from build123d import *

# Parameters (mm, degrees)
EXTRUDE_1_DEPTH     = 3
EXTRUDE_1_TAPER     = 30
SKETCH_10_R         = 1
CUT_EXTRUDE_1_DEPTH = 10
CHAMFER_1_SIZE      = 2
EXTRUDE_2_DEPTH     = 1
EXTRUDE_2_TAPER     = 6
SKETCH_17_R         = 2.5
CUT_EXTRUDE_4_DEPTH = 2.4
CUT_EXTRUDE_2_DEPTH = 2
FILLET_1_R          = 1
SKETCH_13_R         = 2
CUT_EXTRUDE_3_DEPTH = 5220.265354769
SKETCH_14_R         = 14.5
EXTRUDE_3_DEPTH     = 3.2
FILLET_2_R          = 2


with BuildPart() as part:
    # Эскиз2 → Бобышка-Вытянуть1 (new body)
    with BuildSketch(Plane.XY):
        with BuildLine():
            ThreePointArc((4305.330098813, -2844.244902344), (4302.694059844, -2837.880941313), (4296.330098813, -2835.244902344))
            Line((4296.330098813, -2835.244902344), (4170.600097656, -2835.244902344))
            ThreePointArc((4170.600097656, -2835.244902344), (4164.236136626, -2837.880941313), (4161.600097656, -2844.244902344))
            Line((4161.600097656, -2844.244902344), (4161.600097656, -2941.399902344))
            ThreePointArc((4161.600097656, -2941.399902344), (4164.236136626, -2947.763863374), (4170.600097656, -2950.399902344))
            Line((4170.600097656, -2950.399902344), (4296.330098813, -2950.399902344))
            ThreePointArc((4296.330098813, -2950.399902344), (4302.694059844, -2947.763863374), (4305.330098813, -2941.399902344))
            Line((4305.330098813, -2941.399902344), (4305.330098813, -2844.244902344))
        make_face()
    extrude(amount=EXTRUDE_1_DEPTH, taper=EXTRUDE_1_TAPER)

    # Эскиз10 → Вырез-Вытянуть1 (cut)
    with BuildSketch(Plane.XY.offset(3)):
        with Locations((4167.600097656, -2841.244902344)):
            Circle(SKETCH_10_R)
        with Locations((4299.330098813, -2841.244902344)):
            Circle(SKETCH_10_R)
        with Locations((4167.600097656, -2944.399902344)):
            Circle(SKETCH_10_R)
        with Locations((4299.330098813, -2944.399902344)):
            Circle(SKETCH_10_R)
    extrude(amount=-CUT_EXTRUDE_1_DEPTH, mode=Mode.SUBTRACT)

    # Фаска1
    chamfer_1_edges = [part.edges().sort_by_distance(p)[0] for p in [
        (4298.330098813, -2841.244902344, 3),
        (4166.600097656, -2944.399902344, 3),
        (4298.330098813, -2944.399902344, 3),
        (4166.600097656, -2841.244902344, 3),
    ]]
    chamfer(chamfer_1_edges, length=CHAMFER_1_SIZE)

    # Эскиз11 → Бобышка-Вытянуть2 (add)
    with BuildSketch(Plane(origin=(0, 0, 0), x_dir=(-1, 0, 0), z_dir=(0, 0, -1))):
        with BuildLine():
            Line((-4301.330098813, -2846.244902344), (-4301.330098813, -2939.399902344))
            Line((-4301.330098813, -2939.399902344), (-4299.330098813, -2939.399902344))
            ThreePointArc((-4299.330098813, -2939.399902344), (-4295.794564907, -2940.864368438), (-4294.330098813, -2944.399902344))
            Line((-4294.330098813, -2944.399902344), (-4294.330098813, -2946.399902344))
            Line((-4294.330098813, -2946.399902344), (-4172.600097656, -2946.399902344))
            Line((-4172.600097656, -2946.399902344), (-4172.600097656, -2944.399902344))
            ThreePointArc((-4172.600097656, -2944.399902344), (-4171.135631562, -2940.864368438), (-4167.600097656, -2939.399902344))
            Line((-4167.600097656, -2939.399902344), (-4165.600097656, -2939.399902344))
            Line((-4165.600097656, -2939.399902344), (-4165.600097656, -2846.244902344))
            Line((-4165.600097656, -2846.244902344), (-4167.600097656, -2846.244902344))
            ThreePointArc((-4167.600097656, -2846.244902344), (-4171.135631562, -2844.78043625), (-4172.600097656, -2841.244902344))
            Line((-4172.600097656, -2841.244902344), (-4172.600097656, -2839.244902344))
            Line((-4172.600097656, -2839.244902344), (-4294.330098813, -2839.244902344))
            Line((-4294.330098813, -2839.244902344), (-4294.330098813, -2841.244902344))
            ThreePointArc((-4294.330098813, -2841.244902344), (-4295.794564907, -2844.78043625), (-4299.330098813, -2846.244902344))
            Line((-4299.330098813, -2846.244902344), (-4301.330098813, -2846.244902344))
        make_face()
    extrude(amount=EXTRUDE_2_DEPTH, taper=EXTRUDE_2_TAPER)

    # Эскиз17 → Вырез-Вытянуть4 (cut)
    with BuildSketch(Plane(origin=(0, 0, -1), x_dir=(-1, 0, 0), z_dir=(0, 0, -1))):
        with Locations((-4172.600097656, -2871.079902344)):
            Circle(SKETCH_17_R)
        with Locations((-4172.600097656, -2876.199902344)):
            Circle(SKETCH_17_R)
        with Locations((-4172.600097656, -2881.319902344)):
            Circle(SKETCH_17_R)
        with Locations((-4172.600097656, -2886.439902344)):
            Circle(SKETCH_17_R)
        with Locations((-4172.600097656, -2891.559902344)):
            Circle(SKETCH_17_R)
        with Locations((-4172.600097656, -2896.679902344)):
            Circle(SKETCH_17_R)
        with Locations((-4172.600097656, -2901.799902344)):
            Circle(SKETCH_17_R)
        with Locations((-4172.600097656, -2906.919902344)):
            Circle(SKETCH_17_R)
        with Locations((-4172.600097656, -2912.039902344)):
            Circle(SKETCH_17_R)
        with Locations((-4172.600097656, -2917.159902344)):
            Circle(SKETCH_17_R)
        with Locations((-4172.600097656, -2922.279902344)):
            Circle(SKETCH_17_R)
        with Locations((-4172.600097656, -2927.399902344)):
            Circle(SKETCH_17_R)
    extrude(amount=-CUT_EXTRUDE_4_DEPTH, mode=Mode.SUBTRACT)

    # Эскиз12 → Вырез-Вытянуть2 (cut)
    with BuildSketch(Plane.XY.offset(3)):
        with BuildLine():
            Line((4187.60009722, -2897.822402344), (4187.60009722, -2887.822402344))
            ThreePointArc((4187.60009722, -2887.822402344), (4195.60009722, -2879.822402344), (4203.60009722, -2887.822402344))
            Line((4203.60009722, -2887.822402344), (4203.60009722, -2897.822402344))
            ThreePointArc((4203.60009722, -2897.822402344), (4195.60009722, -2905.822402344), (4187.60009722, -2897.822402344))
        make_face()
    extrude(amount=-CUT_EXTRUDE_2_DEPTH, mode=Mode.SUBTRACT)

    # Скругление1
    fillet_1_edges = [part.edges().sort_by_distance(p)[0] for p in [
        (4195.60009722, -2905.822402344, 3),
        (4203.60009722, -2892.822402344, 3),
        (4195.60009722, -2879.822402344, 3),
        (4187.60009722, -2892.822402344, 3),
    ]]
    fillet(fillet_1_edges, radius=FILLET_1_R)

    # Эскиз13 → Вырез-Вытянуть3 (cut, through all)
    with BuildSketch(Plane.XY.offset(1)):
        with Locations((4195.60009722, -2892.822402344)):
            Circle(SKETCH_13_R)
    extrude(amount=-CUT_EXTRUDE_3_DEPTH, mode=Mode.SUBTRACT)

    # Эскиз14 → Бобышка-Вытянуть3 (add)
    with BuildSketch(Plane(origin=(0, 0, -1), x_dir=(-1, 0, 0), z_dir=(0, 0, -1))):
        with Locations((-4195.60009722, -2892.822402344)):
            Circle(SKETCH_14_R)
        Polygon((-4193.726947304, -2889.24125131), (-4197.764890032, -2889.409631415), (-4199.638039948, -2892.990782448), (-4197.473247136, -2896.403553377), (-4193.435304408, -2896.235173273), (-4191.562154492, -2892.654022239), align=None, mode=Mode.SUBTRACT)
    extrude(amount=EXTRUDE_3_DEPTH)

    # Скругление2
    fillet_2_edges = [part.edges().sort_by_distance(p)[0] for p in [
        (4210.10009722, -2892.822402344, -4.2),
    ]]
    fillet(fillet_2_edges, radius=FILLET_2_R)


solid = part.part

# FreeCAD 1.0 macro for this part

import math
import FreeCAD as App
import Part
import Sketcher


def edges_at(feature, points):
    """Names of the edges that pass closest to the given points."""
    edges = feature.Shape.Edges
    near = lambda p: min(range(len(edges)), key=lambda i: edges[i].distToShape(Part.Vertex(*p))[0])
    return sorted({f"Edge{near(p) + 1}" for p in points})


def add_polygon(sketch, points):
    """Adds a closed chain of lines whose ends are joined by coincident constraints."""
    first, n = sketch.GeometryCount, len(points)
    for a, b in zip(points, points[1:] + points[:1]):
        sketch.addGeometry(Part.LineSegment(App.Vector(*a, 0), App.Vector(*b, 0)), False)
    for i in range(n):
        sketch.addConstraint(Sketcher.Constraint("Coincident", first + i, 2, first + (i + 1) % n, 1))

doc = App.newDocument("Part")
body = doc.addObject("PartDesign::Body", "Body")

sketch1 = body.newObject("Sketcher::SketchObject", "Sketch")
sketch1.AttachmentSupport = (doc.getObject("XY_Plane"), [""])
sketch1.MapMode = "FlatFace"
sketch1.addGeometry([
    Part.ArcOfCircle(Part.Circle(App.Vector(4296, -2844, 0), App.Vector(0, 0, 1), 9), math.radians(0), math.radians(90)),
    Part.LineSegment(App.Vector(4296, -2835, 0), App.Vector(4171, -2835, 0)),
    Part.ArcOfCircle(Part.Circle(App.Vector(4171, -2844, 0), App.Vector(0, 0, 1), 9), math.radians(90), math.radians(180)),
    Part.LineSegment(App.Vector(4162, -2844, 0), App.Vector(4162, -2941, 0)),
    Part.ArcOfCircle(Part.Circle(App.Vector(4171, -2941, 0), App.Vector(0, 0, 1), 9), math.radians(-180), math.radians(-90)),
    Part.LineSegment(App.Vector(4171, -2950, 0), App.Vector(4296, -2950, 0)),
    Part.ArcOfCircle(Part.Circle(App.Vector(4296, -2941, 0), App.Vector(0, 0, 1), 9), math.radians(-90), math.radians(0)),
    Part.LineSegment(App.Vector(4305, -2941, 0), App.Vector(4305, -2844, 0)),
], False)
sketch1.addConstraint([
    Sketcher.Constraint("Tangent", 0, 2, 1, 1),
    Sketcher.Constraint("Tangent", 1, 2, 2, 1),
    Sketcher.Constraint("Tangent", 2, 2, 3, 1),
    Sketcher.Constraint("Tangent", 3, 2, 4, 1),
    Sketcher.Constraint("Tangent", 4, 2, 5, 1),
    Sketcher.Constraint("Tangent", 5, 2, 6, 1),
    Sketcher.Constraint("Tangent", 6, 2, 7, 1),
    Sketcher.Constraint("Tangent", 7, 2, 0, 1),
    Sketcher.Constraint("Horizontal", 1),
    Sketcher.Constraint("Vertical", 3),
    Sketcher.Constraint("Horizontal", 5),
    Sketcher.Constraint("Vertical", 7),
    Sketcher.Constraint("Equal", 0, 2),
    Sketcher.Constraint("Equal", 2, 4),
    Sketcher.Constraint("Equal", 4, 6),
    Sketcher.Constraint("Radius", 0, 9.0),
    Sketcher.Constraint("DistanceX", 1, 2, 1, 1, 125.730001),
    Sketcher.Constraint("DistanceY", 3, 2, 3, 1, 97.155),
    Sketcher.Constraint("DistanceX", -1, 1, 0, 3, 4296.330099),
    Sketcher.Constraint("DistanceY", 0, 3, -1, 1, 2844.244902),
])
pad1 = body.newObject("PartDesign::Pad", "Pad")
pad1.Profile = sketch1
pad1.Length = 3
pad1.TaperAngle = -30

sketch2 = body.newObject("Sketcher::SketchObject", "Sketch001")
sketch2.AttachmentSupport = (doc.getObject("XY_Plane"), [""])
sketch2.MapMode = "FlatFace"
sketch2.AttachmentOffset = App.Placement(App.Vector(0, 0, 3), App.Rotation())
sketch2.addGeometry([
    Part.Circle(App.Vector(4167.6, -2841.2, 0), App.Vector(0, 0, 1), 1),
    Part.Circle(App.Vector(4299.3, -2841.2, 0), App.Vector(0, 0, 1), 1),
    Part.Circle(App.Vector(4167.6, -2944.4, 0), App.Vector(0, 0, 1), 1),
    Part.Circle(App.Vector(4299.3, -2944.4, 0), App.Vector(0, 0, 1), 1),
], False)
sketch2.addConstraint([
    Sketcher.Constraint("Equal", 0, 1),
    Sketcher.Constraint("Equal", 1, 2),
    Sketcher.Constraint("Equal", 2, 3),
    Sketcher.Constraint("Horizontal", 0, 3, 1, 3),
    Sketcher.Constraint("Horizontal", 2, 3, 3, 3),
    Sketcher.Constraint("Vertical", 0, 3, 2, 3),
    Sketcher.Constraint("Vertical", 1, 3, 3, 3),
    Sketcher.Constraint("Diameter", 0, 2.0),
    Sketcher.Constraint("DistanceX", 0, 3, 1, 3, 131.730001),
    Sketcher.Constraint("DistanceY", 2, 3, 0, 3, 103.155),
    Sketcher.Constraint("DistanceX", -1, 1, 1, 3, 4299.330099),
    Sketcher.Constraint("DistanceY", 0, 3, -1, 1, 2841.244902),
])
pocket1 = body.newObject("PartDesign::Pocket", "Pocket")
pocket1.Profile = sketch2
pocket1.Length = 10
doc.recompute()

chamfer = body.newObject("PartDesign::Chamfer", "Chamfer")
chamfer.Base = (pocket1, edges_at(pocket1, [
    (4298.33, -2841.245, 3),
    (4166.6, -2944.4, 3),
    (4298.33, -2944.4, 3),
    (4166.6, -2841.245, 3),
]))
chamfer.Size = 2

sketch3 = body.newObject("Sketcher::SketchObject", "Sketch002")
sketch3.AttachmentSupport = (doc.getObject("XY_Plane"), [""])
sketch3.MapMode = "FlatFace"
sketch3.addGeometry([
    Part.LineSegment(App.Vector(4301.3, -2846.2, 0), App.Vector(4301.3, -2939.4, 0)),
    Part.LineSegment(App.Vector(4301.3, -2939.4, 0), App.Vector(4299.3, -2939.4, 0)),
    Part.ArcOfCircle(Part.Circle(App.Vector(4299.3, -2944.4, 0), App.Vector(0, 0, 1), 5), math.radians(90), math.radians(180)),
    Part.LineSegment(App.Vector(4294.3, -2944.4, 0), App.Vector(4294.3, -2946.4, 0)),
    Part.LineSegment(App.Vector(4294.3, -2946.4, 0), App.Vector(4172.6, -2946.4, 0)),
    Part.LineSegment(App.Vector(4172.6, -2946.4, 0), App.Vector(4172.6, -2944.4, 0)),
    Part.ArcOfCircle(Part.Circle(App.Vector(4167.6, -2944.4, 0), App.Vector(0, 0, 1), 5), math.radians(0), math.radians(90)),
    Part.LineSegment(App.Vector(4167.6, -2939.4, 0), App.Vector(4165.6, -2939.4, 0)),
    Part.LineSegment(App.Vector(4165.6, -2939.4, 0), App.Vector(4165.6, -2846.2, 0)),
    Part.LineSegment(App.Vector(4165.6, -2846.2, 0), App.Vector(4167.6, -2846.2, 0)),
    Part.ArcOfCircle(Part.Circle(App.Vector(4167.6, -2841.2, 0), App.Vector(0, 0, 1), 5), math.radians(-90), math.radians(0)),
    Part.LineSegment(App.Vector(4172.6, -2841.2, 0), App.Vector(4172.6, -2839.2, 0)),
    Part.LineSegment(App.Vector(4172.6, -2839.2, 0), App.Vector(4294.3, -2839.2, 0)),
    Part.LineSegment(App.Vector(4294.3, -2839.2, 0), App.Vector(4294.3, -2841.2, 0)),
    Part.ArcOfCircle(Part.Circle(App.Vector(4299.3, -2841.2, 0), App.Vector(0, 0, 1), 5), math.radians(180), math.radians(270)),
    Part.LineSegment(App.Vector(4299.3, -2846.2, 0), App.Vector(4301.3, -2846.2, 0)),
], False)
sketch3.addConstraint([
    Sketcher.Constraint("Coincident", 0, 2, 1, 1),
    Sketcher.Constraint("Tangent", 1, 2, 2, 1),
    Sketcher.Constraint("Tangent", 2, 2, 3, 1),
    Sketcher.Constraint("Coincident", 3, 2, 4, 1),
    Sketcher.Constraint("Coincident", 4, 2, 5, 1),
    Sketcher.Constraint("Tangent", 5, 2, 6, 1),
    Sketcher.Constraint("Tangent", 6, 2, 7, 1),
    Sketcher.Constraint("Coincident", 7, 2, 8, 1),
    Sketcher.Constraint("Coincident", 8, 2, 9, 1),
    Sketcher.Constraint("Tangent", 9, 2, 10, 1),
    Sketcher.Constraint("Tangent", 10, 2, 11, 1),
    Sketcher.Constraint("Coincident", 11, 2, 12, 1),
    Sketcher.Constraint("Coincident", 12, 2, 13, 1),
    Sketcher.Constraint("Tangent", 13, 2, 14, 1),
    Sketcher.Constraint("Tangent", 14, 2, 15, 1),
    Sketcher.Constraint("Coincident", 15, 2, 0, 1),
    Sketcher.Constraint("Vertical", 0),
    Sketcher.Constraint("Horizontal", 1),
    Sketcher.Constraint("Vertical", 3),
    Sketcher.Constraint("Horizontal", 4),
    Sketcher.Constraint("Vertical", 5),
    Sketcher.Constraint("Horizontal", 7),
    Sketcher.Constraint("Vertical", 8),
    Sketcher.Constraint("Horizontal", 9),
    Sketcher.Constraint("Vertical", 11),
    Sketcher.Constraint("Horizontal", 12),
    Sketcher.Constraint("Vertical", 13),
    Sketcher.Constraint("Horizontal", 15),
    Sketcher.Constraint("Equal", 2, 6),
    Sketcher.Constraint("Equal", 6, 10),
    Sketcher.Constraint("Equal", 10, 14),
    Sketcher.Constraint("Horizontal", 2, 3, 6, 3),
    Sketcher.Constraint("Horizontal", 10, 3, 14, 3),
    Sketcher.Constraint("Vertical", 6, 3, 10, 3),
    Sketcher.Constraint("Vertical", 2, 3, 14, 3),
    Sketcher.Constraint("Equal", 1, 7),
    Sketcher.Constraint("Equal", 15, 3),
    Sketcher.Constraint("Equal", 5, 11),
    Sketcher.Constraint("Radius", 2, 5.0),
    Sketcher.Constraint("DistanceX", 1, 2, 1, 1, 2.0),
    Sketcher.Constraint("DistanceX", 4, 2, 4, 1, 121.730001),
    Sketcher.Constraint("DistanceY", 0, 2, 0, 1, 93.155),
    Sketcher.Constraint("DistanceX", -1, 1, 2, 3, 4299.330099),
    Sketcher.Constraint("DistanceY", 2, 3, -1, 1, 2944.399902),
])
pad2 = body.newObject("PartDesign::Pad", "Pad001")
pad2.Profile = sketch3
pad2.Length = 1
pad2.Reversed = True
pad2.TaperAngle = -6

sketch4 = body.newObject("Sketcher::SketchObject", "Sketch003")
sketch4.AttachmentSupport = (doc.getObject("XY_Plane"), [""])
sketch4.MapMode = "FlatFace"
sketch4.AttachmentOffset = App.Placement(App.Vector(0, 0, -1), App.Rotation())
sketch4.addGeometry([
    Part.Circle(App.Vector(4172.6, -2871.1, 0), App.Vector(0, 0, 1), 2.5),
    Part.Circle(App.Vector(4172.6, -2876.2, 0), App.Vector(0, 0, 1), 2.5),
    Part.Circle(App.Vector(4172.6, -2881.3, 0), App.Vector(0, 0, 1), 2.5),
    Part.Circle(App.Vector(4172.6, -2886.4, 0), App.Vector(0, 0, 1), 2.5),
    Part.Circle(App.Vector(4172.6, -2891.6, 0), App.Vector(0, 0, 1), 2.5),
    Part.Circle(App.Vector(4172.6, -2896.7, 0), App.Vector(0, 0, 1), 2.5),
    Part.Circle(App.Vector(4172.6, -2901.8, 0), App.Vector(0, 0, 1), 2.5),
    Part.Circle(App.Vector(4172.6, -2906.9, 0), App.Vector(0, 0, 1), 2.5),
    Part.Circle(App.Vector(4172.6, -2912, 0), App.Vector(0, 0, 1), 2.5),
    Part.Circle(App.Vector(4172.6, -2917.2, 0), App.Vector(0, 0, 1), 2.5),
    Part.Circle(App.Vector(4172.6, -2922.3, 0), App.Vector(0, 0, 1), 2.5),
    Part.Circle(App.Vector(4172.6, -2927.4, 0), App.Vector(0, 0, 1), 2.5),
], False)
sketch4.addConstraint([
    Sketcher.Constraint("Equal", 0, 1),
    Sketcher.Constraint("Equal", 1, 2),
    Sketcher.Constraint("Equal", 2, 3),
    Sketcher.Constraint("Equal", 3, 4),
    Sketcher.Constraint("Equal", 4, 5),
    Sketcher.Constraint("Equal", 5, 6),
    Sketcher.Constraint("Equal", 6, 7),
    Sketcher.Constraint("Equal", 7, 8),
    Sketcher.Constraint("Equal", 8, 9),
    Sketcher.Constraint("Equal", 9, 10),
    Sketcher.Constraint("Equal", 10, 11),
    Sketcher.Constraint("Vertical", 0, 3, 1, 3),
    Sketcher.Constraint("Vertical", 1, 3, 2, 3),
    Sketcher.Constraint("Vertical", 2, 3, 3, 3),
    Sketcher.Constraint("Vertical", 3, 3, 4, 3),
    Sketcher.Constraint("Vertical", 4, 3, 5, 3),
    Sketcher.Constraint("Vertical", 5, 3, 6, 3),
    Sketcher.Constraint("Vertical", 6, 3, 7, 3),
    Sketcher.Constraint("Vertical", 7, 3, 8, 3),
    Sketcher.Constraint("Vertical", 8, 3, 9, 3),
    Sketcher.Constraint("Vertical", 9, 3, 10, 3),
    Sketcher.Constraint("Vertical", 10, 3, 11, 3),
    Sketcher.Constraint("Diameter", 0, 5.0),
    Sketcher.Constraint("DistanceY", 5, 3, 0, 3, 25.6),
    Sketcher.Constraint("DistanceY", 6, 3, 1, 3, 25.6),
    Sketcher.Constraint("DistanceY", 7, 3, 2, 3, 25.6),
    Sketcher.Constraint("DistanceY", 8, 3, 3, 3, 25.6),
    Sketcher.Constraint("DistanceY", 9, 3, 4, 3, 25.6),
    Sketcher.Constraint("DistanceY", 10, 3, 5, 3, 25.6),
    Sketcher.Constraint("DistanceY", 11, 3, 6, 3, 25.6),
    Sketcher.Constraint("DistanceY", 1, 3, 0, 3, 5.12),
    Sketcher.Constraint("DistanceY", 2, 3, 1, 3, 5.12),
    Sketcher.Constraint("DistanceY", 3, 3, 2, 3, 5.12),
    Sketcher.Constraint("DistanceY", 4, 3, 3, 3, 5.12),
    Sketcher.Constraint("DistanceX", -1, 1, 0, 3, 4172.600098),
    Sketcher.Constraint("DistanceY", 0, 3, -1, 1, 2871.079902),
])
pocket2 = body.newObject("PartDesign::Pocket", "Pocket001")
pocket2.Profile = sketch4
pocket2.Length = 2.4
pocket2.Reversed = True

sketch5 = body.newObject("Sketcher::SketchObject", "Sketch004")
sketch5.AttachmentSupport = (doc.getObject("XY_Plane"), [""])
sketch5.MapMode = "FlatFace"
sketch5.AttachmentOffset = App.Placement(App.Vector(0, 0, 3), App.Rotation())
sketch5.addGeometry([
    Part.LineSegment(App.Vector(4188, -2888, 0), App.Vector(4188, -2898, 0)),
    Part.ArcOfCircle(Part.Circle(App.Vector(4196, -2898, 0), App.Vector(0, 0, 1), 8), math.radians(180), math.radians(360)),
    Part.LineSegment(App.Vector(4204, -2898, 0), App.Vector(4204, -2888, 0)),
    Part.ArcOfCircle(Part.Circle(App.Vector(4196, -2888, 0), App.Vector(0, 0, 1), 8), math.radians(0), math.radians(180)),
], False)
sketch5.addConstraint([
    Sketcher.Constraint("Tangent", 0, 2, 1, 1),
    Sketcher.Constraint("Tangent", 1, 2, 2, 1),
    Sketcher.Constraint("Tangent", 2, 2, 3, 1),
    Sketcher.Constraint("Tangent", 3, 2, 0, 1),
    Sketcher.Constraint("Vertical", 0),
    Sketcher.Constraint("Vertical", 2),
    Sketcher.Constraint("Radius", 1, 8.0),
    Sketcher.Constraint("DistanceY", 0, 2, 0, 1, 10.0),
    Sketcher.Constraint("DistanceX", -1, 1, 1, 3, 4195.600097),
    Sketcher.Constraint("DistanceY", 1, 3, -1, 1, 2897.822402),
])
pocket3 = body.newObject("PartDesign::Pocket", "Pocket002")
pocket3.Profile = sketch5
pocket3.Length = 2
doc.recompute()

fillet = body.newObject("PartDesign::Fillet", "Fillet")
fillet.Base = (pocket3, edges_at(pocket3, [
    (4195.6, -2905.822, 3),
    (4203.6, -2892.822, 3),
    (4195.6, -2879.822, 3),
    (4187.6, -2892.822, 3),
]))
fillet.Radius = 1

sketch6 = body.newObject("Sketcher::SketchObject", "Sketch005")
sketch6.AttachmentSupport = (doc.getObject("XY_Plane"), [""])
sketch6.MapMode = "FlatFace"
sketch6.AttachmentOffset = App.Placement(App.Vector(0, 0, 1), App.Rotation())
sketch6.addGeometry(Part.Circle(App.Vector(4195.6, -2892.8, 0), App.Vector(0, 0, 1), 2), False)
sketch6.addConstraint([
    Sketcher.Constraint("Diameter", 0, 4.0),
    Sketcher.Constraint("DistanceX", -1, 1, 0, 3, 4195.600097),
    Sketcher.Constraint("DistanceY", 0, 3, -1, 1, 2892.822402),
])
pocket4 = body.newObject("PartDesign::Pocket", "Pocket003")
pocket4.Profile = sketch6
pocket4.Type = "ThroughAll"

sketch7 = body.newObject("Sketcher::SketchObject", "Sketch006")
sketch7.AttachmentSupport = (doc.getObject("XY_Plane"), [""])
sketch7.MapMode = "FlatFace"
sketch7.AttachmentOffset = App.Placement(App.Vector(0, 0, -1), App.Rotation())
sketch7.addGeometry(Part.Circle(App.Vector(4195.6, -2892.8, 0), App.Vector(0, 0, 1), 14.5), False)
add_polygon(sketch7, [(4197.8, -2889.4), (4193.7, -2889.2), (4191.6, -2892.7), (4193.4, -2896.2), (4197.5, -2896.4), (4199.6, -2893)])
sketch7.addConstraint([
    Sketcher.Constraint("Parallel", 1, 4),
    Sketcher.Constraint("Parallel", 2, 5),
    Sketcher.Constraint("Parallel", 3, 6),
    Sketcher.Constraint("Equal", 1, 2),
    Sketcher.Constraint("Equal", 2, 3),
    Sketcher.Constraint("Equal", 3, 4),
    Sketcher.Constraint("Diameter", 0, 29.0),
    Sketcher.Constraint("DistanceX", 1, 2, 4, 2, 3.7463),
    Sketcher.Constraint("Distance", 1, 4.041452),
    Sketcher.Constraint("DistanceY", 1, 2, -1, 1, 2889.241251),
    Sketcher.Constraint("DistanceX", -1, 1, 5, 2, 4199.63804),
    Sketcher.Constraint("DistanceX", -1, 1, 6, 2, 4197.76489),
    Sketcher.Constraint("DistanceY", 6, 2, -1, 1, 2889.409631),
    Sketcher.Constraint("DistanceX", 1, 2, 0, 3, 1.87315),
    Sketcher.Constraint("DistanceY", 0, 3, 1, 2, 3.581151),
])
pad3 = body.newObject("PartDesign::Pad", "Pad002")
pad3.Profile = sketch7
pad3.Length = 3.2
pad3.Reversed = True
doc.recompute()

fillet2 = body.newObject("PartDesign::Fillet", "Fillet001")
fillet2.Base = (pad3, edges_at(pad3, [(4210.1, -2892.822, -4.2)]))
fillet2.Radius = 2

doc.recompute()
